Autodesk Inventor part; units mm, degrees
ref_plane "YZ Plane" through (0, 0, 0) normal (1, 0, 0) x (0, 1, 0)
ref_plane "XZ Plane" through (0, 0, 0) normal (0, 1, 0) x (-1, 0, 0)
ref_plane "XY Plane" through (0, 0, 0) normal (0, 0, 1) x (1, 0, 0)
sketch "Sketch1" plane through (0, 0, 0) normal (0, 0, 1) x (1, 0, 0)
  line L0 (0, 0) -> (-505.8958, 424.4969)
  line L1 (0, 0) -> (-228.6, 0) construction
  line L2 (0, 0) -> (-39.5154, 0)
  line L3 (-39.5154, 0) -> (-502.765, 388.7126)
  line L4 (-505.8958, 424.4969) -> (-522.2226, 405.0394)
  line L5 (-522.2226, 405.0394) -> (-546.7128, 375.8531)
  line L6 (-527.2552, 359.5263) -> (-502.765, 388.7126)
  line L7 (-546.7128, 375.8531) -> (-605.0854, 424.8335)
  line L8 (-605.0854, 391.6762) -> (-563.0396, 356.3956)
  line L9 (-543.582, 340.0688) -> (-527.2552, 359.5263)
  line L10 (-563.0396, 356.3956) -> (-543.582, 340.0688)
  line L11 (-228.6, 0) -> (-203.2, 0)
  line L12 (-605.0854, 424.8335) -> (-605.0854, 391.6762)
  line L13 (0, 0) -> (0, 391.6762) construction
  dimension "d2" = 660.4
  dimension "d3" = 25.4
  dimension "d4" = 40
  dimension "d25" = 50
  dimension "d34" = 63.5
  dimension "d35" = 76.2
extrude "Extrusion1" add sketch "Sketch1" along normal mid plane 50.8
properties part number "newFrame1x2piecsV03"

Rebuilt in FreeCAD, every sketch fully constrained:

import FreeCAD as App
import Part
import Sketcher
from FreeCAD import Vector
Q = App.Units.Quantity


def add_polygon(sketch, points):
    """Adds a closed chain of lines whose ends are joined by coincident constraints."""
    first, n = sketch.GeometryCount, len(points)
    for a, b in zip(points, points[1:] + points[:1]):
        sketch.addGeometry(Part.LineSegment(App.Vector(*a, 0), App.Vector(*b, 0)), False)
    for i in range(n):
        sketch.addConstraint(Sketcher.Constraint("Coincident", first + i, 2, first + (i + 1) % n, 1))

doc = App.newDocument("Part")
params = doc.addObject("Spreadsheet::Sheet", "Params")
for row, (alias, value) in enumerate([
    ("sketch1_length", "26 in"),
    ("sketch1_length2", "1 in"),
    ("sketch1_length3", "3 in"),
    ("sketch1_length4", "1.5 in"),
    ("pad1_length", "2 in"),
], start=1):
    params.set(f"A{row}", alias)
    params.set(f"B{row}", "=" + value)
    params.setAlias(f"B{row}", alias)

body = doc.addObject("PartDesign::Body", "Body")

# Sketch on XY plane
sketch1 = doc.addObject("Sketcher::SketchObject", "Sketch")
body.addObject(sketch1)
sketch1.AttachmentSupport = (doc.XY_Plane, [""])
sketch1.MapMode = "FlatFace"
add_polygon(sketch1, [(-39.5154, 0), (0, 0), (-505.8958, 424.4969), (-522.2226, 405.0394), (-546.7128, 375.8531), (-605.0854, 424.8335), (-605.0854, 391.6762), (-563.0396, 356.3956), (-543.582, 340.0688), (-527.2552, 359.5263), (-502.765, 388.7126)])  # lines 0-10
sketch1.addConstraint([
    Sketcher.Constraint("Horizontal", 0),
    Sketcher.Constraint("Vertical", 5),
    Sketcher.Constraint("Coincident", 0, 2, -1, 1),
    Sketcher.Constraint("Perpendicular", 1, 2),
    Sketcher.Constraint("Parallel", 2, 3),
    Sketcher.Constraint("Perpendicular", 3, 4),
    Sketcher.Constraint("Parallel", 4, 6),
    Sketcher.Constraint("Parallel", 6, 7),
    Sketcher.Constraint("Perpendicular", 7, 8),
    Sketcher.Constraint("Parallel", 8, 9),
    Sketcher.Constraint("Perpendicular", 9, 10),
    Sketcher.Constraint("Equal", 2, 7),
    Sketcher.Constraint("Equal", 7, 8),
    Sketcher.Constraint("Equal", 3, 9),
    Sketcher.Constraint("Distance", 1, Q("26 in")),
    Sketcher.Constraint("Distance", 2, Q("1 in")),
    Sketcher.Constraint("Distance", 4, Q("3 in")),
    Sketcher.Constraint("Angle", 6, Q("-40 deg")),
    Sketcher.Constraint("Distance", 3, Q("1.5 in")),
    Sketcher.Constraint("DistanceY", 5, 2, 5, 1, Q("1.3054 in")),
    Sketcher.Constraint("DistanceY", 6, 2, 5, 2, Q("1.389 in")),
])
sketch1.setExpression("Constraints[25]", "Params.sketch1_length")
sketch1.setExpression("Constraints[26]", "Params.sketch1_length2")
sketch1.setExpression("Constraints[27]", "Params.sketch1_length3")
sketch1.setExpression("Constraints[29]", "Params.sketch1_length4")
pad1 = doc.addObject("PartDesign::Pad", "Pad")
body.addObject(pad1)
pad1.Profile = sketch1
pad1.setExpression("Length", "Params.pad1_length")
pad1.Midplane = True

doc.recompute()
